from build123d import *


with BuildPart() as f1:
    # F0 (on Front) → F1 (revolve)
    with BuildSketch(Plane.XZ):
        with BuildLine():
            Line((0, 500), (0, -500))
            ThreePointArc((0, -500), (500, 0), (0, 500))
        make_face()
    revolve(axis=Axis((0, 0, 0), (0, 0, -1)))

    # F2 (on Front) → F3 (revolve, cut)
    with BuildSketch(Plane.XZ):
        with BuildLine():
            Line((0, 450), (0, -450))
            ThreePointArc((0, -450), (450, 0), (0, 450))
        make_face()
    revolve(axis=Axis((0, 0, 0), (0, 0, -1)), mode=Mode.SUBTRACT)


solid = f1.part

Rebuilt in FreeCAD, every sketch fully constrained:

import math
import FreeCAD as App
import Part
import Sketcher
from FreeCAD import Vector
Q = App.Units.Quantity

doc = App.newDocument("Part")
body = doc.addObject("PartDesign::Body", "Body")

sketch1 = body.newObject("Sketcher::SketchObject", "Sketch")
sketch1.AttachmentSupport = (doc.getObject("XZ_Plane"), [""])
sketch1.MapMode = "FlatFace"
sketch1.addGeometry(Part.LineSegment(Vector(0, 500, 0), Vector(0, -500, 0)), False)
sketch1.addGeometry(Part.ArcOfCircle(Part.Circle(Vector(0, 0, 0), Vector(0, 0, 1), 500), math.radians(-90), math.radians(90)), False)
sketch1.addConstraint(Sketcher.Constraint("Coincident", 0, 1, 1, 2))
sketch1.addConstraint(Sketcher.Constraint("Coincident", 1, 1, 0, 2))
sketch1.addConstraint(Sketcher.Constraint("Vertical", 0))
sketch1.addConstraint(Sketcher.Constraint("Coincident", 1, 3, -1, 1))
sketch1.addConstraint(Sketcher.Constraint("PointOnObject", 0, 1, -2))
sketch1.addConstraint(Sketcher.Constraint("Radius", 1, Q("500 mm")))
revolution = body.newObject("PartDesign::Revolution", "Revolution")
revolution.Profile = sketch1
revolution.ReferenceAxis = (sketch1, ["V_Axis"])
revolution.Angle = 360

sketch2 = body.newObject("Sketcher::SketchObject", "Sketch001")
sketch2.AttachmentSupport = (doc.getObject("XZ_Plane"), [""])
sketch2.MapMode = "FlatFace"
sketch2.addGeometry(Part.LineSegment(Vector(0, 450, 0), Vector(0, -450, 0)), False)
sketch2.addGeometry(Part.ArcOfCircle(Part.Circle(Vector(0, 0, 0), Vector(0, 0, 1), 450), math.radians(-90), math.radians(90)), False)
sketch2.addConstraint(Sketcher.Constraint("Coincident", 0, 1, 1, 2))
sketch2.addConstraint(Sketcher.Constraint("Coincident", 1, 1, 0, 2))
sketch2.addConstraint(Sketcher.Constraint("Vertical", 0))
sketch2.addConstraint(Sketcher.Constraint("Coincident", 1, 3, -1, 1))
sketch2.addConstraint(Sketcher.Constraint("PointOnObject", 0, 1, -2))
sketch2.addConstraint(Sketcher.Constraint("Radius", 1, Q("450 mm")))
groove = body.newObject("PartDesign::Groove", "Groove")
groove.Profile = sketch2
groove.ReferenceAxis = (sketch2, ["V_Axis"])
groove.Angle = 360

doc.recompute()
